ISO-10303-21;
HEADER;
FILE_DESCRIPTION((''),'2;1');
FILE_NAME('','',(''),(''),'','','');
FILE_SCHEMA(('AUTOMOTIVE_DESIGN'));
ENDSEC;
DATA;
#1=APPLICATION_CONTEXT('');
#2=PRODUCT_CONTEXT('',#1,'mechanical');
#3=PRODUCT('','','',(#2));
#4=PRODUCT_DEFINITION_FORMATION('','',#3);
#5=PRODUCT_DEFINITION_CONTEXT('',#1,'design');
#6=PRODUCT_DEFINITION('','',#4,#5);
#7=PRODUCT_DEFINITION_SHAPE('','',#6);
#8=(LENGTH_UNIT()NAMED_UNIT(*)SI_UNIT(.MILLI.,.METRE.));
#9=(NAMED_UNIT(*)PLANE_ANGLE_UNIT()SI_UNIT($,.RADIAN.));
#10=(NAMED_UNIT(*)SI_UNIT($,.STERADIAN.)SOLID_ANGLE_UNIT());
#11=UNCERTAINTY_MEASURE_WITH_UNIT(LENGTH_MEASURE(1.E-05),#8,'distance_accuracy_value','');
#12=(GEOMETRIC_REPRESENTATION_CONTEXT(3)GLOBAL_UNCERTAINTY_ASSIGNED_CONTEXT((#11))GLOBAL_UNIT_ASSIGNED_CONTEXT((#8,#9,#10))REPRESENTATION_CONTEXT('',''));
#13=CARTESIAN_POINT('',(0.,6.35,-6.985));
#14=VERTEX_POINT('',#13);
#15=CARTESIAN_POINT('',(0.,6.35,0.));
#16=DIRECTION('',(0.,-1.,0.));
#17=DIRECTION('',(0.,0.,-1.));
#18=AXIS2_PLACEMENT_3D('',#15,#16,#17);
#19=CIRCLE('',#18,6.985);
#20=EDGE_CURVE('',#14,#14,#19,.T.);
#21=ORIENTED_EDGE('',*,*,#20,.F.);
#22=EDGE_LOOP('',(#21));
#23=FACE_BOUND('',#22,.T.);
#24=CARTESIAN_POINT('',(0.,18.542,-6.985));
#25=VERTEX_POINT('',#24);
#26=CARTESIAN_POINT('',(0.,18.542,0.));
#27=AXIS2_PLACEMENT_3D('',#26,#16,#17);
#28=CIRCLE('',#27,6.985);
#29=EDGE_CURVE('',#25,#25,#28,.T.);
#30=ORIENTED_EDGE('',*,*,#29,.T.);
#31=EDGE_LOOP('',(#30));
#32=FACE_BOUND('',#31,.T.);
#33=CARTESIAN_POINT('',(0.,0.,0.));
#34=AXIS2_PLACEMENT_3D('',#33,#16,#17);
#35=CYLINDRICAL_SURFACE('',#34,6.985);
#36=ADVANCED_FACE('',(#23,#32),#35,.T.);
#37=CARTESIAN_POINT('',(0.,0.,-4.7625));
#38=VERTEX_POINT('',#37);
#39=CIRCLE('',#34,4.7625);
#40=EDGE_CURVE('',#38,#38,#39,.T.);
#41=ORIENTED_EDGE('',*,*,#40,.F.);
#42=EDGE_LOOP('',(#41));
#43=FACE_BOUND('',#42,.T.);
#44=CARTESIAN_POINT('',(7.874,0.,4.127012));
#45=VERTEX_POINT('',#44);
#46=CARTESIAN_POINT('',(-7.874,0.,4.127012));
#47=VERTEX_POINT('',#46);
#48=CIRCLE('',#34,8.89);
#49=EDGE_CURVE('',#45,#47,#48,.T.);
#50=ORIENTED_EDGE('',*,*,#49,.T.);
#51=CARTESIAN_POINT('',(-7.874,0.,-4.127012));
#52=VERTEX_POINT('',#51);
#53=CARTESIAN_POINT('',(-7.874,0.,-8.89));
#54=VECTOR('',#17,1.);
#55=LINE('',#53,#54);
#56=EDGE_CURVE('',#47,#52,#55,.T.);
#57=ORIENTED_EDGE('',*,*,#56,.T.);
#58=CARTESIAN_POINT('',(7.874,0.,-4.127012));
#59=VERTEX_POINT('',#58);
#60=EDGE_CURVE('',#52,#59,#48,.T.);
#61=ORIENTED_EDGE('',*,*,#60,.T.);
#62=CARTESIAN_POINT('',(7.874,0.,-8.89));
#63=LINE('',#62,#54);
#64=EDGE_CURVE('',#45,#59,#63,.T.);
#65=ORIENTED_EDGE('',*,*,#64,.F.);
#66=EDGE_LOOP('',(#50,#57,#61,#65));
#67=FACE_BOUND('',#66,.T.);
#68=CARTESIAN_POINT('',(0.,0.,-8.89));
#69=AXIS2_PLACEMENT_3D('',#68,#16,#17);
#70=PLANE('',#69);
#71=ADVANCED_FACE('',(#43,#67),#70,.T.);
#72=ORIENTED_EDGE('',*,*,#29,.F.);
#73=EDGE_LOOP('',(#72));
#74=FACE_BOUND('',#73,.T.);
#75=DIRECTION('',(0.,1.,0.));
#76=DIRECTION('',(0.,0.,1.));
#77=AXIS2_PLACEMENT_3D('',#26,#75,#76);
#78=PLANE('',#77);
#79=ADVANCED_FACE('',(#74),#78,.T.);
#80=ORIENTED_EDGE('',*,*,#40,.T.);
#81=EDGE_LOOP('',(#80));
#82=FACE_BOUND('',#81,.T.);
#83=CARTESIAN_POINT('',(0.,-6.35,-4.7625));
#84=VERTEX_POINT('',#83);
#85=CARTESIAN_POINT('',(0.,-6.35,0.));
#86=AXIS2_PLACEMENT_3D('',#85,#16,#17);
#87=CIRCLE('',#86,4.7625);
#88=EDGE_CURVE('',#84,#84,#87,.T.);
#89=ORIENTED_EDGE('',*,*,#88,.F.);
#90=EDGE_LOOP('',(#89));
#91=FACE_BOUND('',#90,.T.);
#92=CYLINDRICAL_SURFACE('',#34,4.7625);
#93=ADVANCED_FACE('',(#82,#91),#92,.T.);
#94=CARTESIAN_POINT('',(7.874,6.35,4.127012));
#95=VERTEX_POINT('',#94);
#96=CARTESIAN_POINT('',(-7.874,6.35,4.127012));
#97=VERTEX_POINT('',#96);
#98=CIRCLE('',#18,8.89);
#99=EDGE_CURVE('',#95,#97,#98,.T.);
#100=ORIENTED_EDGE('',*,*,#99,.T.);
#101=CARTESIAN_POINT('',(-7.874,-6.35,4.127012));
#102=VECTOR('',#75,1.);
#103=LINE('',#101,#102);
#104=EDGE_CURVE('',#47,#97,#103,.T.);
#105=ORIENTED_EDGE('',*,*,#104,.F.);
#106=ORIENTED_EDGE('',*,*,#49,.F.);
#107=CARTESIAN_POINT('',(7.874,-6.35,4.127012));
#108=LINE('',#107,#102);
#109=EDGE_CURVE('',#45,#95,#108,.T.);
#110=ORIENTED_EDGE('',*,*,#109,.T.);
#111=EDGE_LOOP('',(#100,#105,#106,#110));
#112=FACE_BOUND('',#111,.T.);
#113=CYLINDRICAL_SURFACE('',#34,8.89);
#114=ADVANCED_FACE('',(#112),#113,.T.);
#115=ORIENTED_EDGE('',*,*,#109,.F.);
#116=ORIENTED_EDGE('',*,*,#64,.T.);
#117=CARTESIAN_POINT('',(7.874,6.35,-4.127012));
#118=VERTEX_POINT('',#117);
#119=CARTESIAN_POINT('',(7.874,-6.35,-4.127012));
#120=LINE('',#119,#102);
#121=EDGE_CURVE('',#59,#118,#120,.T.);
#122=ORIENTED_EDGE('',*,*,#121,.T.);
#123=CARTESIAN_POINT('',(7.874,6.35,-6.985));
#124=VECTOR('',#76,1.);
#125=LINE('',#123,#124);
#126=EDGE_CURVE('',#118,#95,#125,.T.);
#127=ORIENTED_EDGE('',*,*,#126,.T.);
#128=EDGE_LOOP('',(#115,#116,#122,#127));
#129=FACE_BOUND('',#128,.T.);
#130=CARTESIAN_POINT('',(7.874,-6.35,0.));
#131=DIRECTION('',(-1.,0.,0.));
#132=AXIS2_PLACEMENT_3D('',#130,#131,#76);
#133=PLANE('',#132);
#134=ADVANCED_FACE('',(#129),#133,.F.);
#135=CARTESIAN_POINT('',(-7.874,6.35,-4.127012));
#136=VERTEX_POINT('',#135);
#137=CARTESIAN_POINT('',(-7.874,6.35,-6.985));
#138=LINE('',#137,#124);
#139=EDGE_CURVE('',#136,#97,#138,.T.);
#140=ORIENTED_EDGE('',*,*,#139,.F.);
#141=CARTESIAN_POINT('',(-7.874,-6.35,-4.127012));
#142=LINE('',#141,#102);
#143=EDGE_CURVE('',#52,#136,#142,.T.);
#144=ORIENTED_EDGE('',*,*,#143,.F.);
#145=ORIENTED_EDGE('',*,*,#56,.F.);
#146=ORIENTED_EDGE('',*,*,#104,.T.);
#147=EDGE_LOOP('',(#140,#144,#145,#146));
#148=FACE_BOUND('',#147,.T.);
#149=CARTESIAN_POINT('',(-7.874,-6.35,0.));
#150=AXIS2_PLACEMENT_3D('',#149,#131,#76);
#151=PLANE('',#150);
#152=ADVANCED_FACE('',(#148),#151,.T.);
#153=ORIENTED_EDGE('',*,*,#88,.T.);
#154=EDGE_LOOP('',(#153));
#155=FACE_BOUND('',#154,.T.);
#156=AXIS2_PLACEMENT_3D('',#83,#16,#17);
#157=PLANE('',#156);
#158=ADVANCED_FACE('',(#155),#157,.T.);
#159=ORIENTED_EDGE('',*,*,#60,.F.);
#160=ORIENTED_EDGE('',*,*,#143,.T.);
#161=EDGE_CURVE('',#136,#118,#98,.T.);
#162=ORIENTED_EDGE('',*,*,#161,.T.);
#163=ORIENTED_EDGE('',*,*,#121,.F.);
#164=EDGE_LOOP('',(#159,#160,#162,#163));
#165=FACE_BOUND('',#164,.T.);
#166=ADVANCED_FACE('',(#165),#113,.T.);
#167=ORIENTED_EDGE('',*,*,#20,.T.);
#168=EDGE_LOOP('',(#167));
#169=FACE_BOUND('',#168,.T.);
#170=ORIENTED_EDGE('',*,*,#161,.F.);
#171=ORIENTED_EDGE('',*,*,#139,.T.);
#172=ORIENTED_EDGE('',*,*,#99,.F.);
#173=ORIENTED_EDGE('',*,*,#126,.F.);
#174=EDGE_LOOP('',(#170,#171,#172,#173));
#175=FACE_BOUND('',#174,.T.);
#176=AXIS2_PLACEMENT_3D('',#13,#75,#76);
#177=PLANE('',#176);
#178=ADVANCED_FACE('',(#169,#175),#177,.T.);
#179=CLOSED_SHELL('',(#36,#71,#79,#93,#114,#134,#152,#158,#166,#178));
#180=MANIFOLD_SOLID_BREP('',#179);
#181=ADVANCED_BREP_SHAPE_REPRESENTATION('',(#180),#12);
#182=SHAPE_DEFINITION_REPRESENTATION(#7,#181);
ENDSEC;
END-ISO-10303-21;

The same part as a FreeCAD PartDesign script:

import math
import FreeCAD as App
import Part
import Sketcher
Q = App.Units.Quantity


def add_polygon(sketch, points):
    """Adds a closed chain of lines whose ends are joined by coincident constraints."""
    first, n = sketch.GeometryCount, len(points)
    for a, b in zip(points, points[1:] + points[:1]):
        sketch.addGeometry(Part.LineSegment(App.Vector(*a, 0), App.Vector(*b, 0)), False)
    for i in range(n):
        sketch.addConstraint(Sketcher.Constraint("Coincident", first + i, 2, first + (i + 1) % n, 1))

doc = App.newDocument("Part")
params = doc.addObject("Spreadsheet::Sheet", "Params")
for row, (alias, value) in enumerate([
    ("sketch1_width", "0.98 in"),
    ("sketch1_width2", "0.25 in"),
    ("sketch1_height", "0.1875 in"),
    ("sketch1_height2", "0.075 in"),
    ("sketch1_height3", "0.275 in"),
    ("revolution_angle", "360 deg"),
    ("sketch2_radius", "0.35 in"),
], start=1):
    params.set(f"A{row}", alias)
    params.set(f"B{row}", "=" + value)
    params.setAlias(f"B{row}", alias)

body = doc.addObject("PartDesign::Body", "Body")

# Sketch on YZ plane
sketch1 = body.newObject("Sketcher::SketchObject", "Sketch")
sketch1.AttachmentSupport = (doc.getObject("YZ_Plane"), [""])
sketch1.MapMode = "FlatFace"
add_polygon(sketch1, [(18.5, 0), (-6.3, 0), (-6.3, -4.8), (0, -4.8), (0, -8.9), (6.3, -8.9), (6.3, -7), (18.5, -7)])  # lines 0-7
sketch1.addConstraint(Sketcher.Constraint("Horizontal", 0))
sketch1.addConstraint(Sketcher.Constraint("Vertical", 1))
sketch1.addConstraint(Sketcher.Constraint("Horizontal", 2))
sketch1.addConstraint(Sketcher.Constraint("Vertical", 3))
sketch1.addConstraint(Sketcher.Constraint("Horizontal", 4))
sketch1.addConstraint(Sketcher.Constraint("Vertical", 5))
sketch1.addConstraint(Sketcher.Constraint("Horizontal", 6))
sketch1.addConstraint(Sketcher.Constraint("Vertical", 7))
sketch1.addConstraint(Sketcher.Constraint("PointOnObject", 0, 2, -1))
sketch1.addConstraint(Sketcher.Constraint("PointOnObject", 2, 2, -2))
sketch1.addConstraint(Sketcher.Constraint("Equal", 2, 4))
sketch1.addConstraint(Sketcher.Constraint("DistanceX", 0, 2, 0, 1, Q("0.98 in")))
sketch1.addConstraint(Sketcher.Constraint("DistanceX", 2, 1, 2, 2, Q("0.25 in")))
sketch1.addConstraint(Sketcher.Constraint("DistanceY", 1, 2, 1, 1, Q("0.1875 in")))
sketch1.addConstraint(Sketcher.Constraint("DistanceY", 5, 1, 5, 2, Q("0.075 in")))
sketch1.addConstraint(Sketcher.Constraint("DistanceY", 7, 1, 7, 2, Q("0.275 in")))
sketch1.setExpression("Constraints[19]", "Params.sketch1_width")
sketch1.setExpression("Constraints[20]", "Params.sketch1_width2")
sketch1.setExpression("Constraints[21]", "Params.sketch1_height")
sketch1.setExpression("Constraints[22]", "Params.sketch1_height2")
sketch1.setExpression("Constraints[23]", "Params.sketch1_height3")
revolution = body.newObject("PartDesign::Revolution", "Revolution")
revolution.Profile = sketch1
revolution.ReferenceAxis = (sketch1, ["H_Axis"])
revolution.setExpression("Angle", "Params.revolution_angle")

# Sketch on XZ plane
sketch2 = body.newObject("Sketcher::SketchObject", "Sketch001")
sketch2.AttachmentSupport = (doc.getObject("XZ_Plane"), [""])
sketch2.MapMode = "FlatFace"
sketch2.AttachmentOffset = App.Placement(App.Vector(0, 0, -0.73 * 25.4), App.Rotation())
sketch2.addGeometry(Part.LineSegment(App.Vector(-7.9, 4.1, 0), App.Vector(-7.9, -4.1, 0)), False)
sketch2.addGeometry(Part.ArcOfCircle(Part.Circle(App.Vector(0, 0, 0), App.Vector(0, 0, 1), 8.9), math.radians(152), math.radians(208)), False)
sketch2.addGeometry(Part.ArcOfCircle(Part.Circle(App.Vector(0, 0, 0), App.Vector(0, 0, 1), 8.9), math.radians(-28), math.radians(0)), False)
sketch2.addGeometry(Part.LineSegment(App.Vector(7.9, -4.1, 0), App.Vector(7.9, 4.1, 0)), False)
sketch2.addGeometry(Part.ArcOfCircle(Part.Circle(App.Vector(0, 0, 0), App.Vector(0, 0, 1), 8.9), math.radians(0), math.radians(28)), False)
sketch2.addConstraint(Sketcher.Constraint("Coincident", 0, 1, 1, 1))
sketch2.addConstraint(Sketcher.Constraint("Coincident", 1, 2, 0, 2))
sketch2.addConstraint(Sketcher.Constraint("Coincident", 2, 1, 3, 1))
sketch2.addConstraint(Sketcher.Constraint("Coincident", 3, 2, 4, 2))
sketch2.addConstraint(Sketcher.Constraint("Tangent", 4, 1, 2, 2))
sketch2.addConstraint(Sketcher.Constraint("Vertical", 0))
sketch2.addConstraint(Sketcher.Constraint("Vertical", 3))
sketch2.addConstraint(Sketcher.Constraint("Coincident", 1, 3, -1, 1))
sketch2.addConstraint(Sketcher.Constraint("Coincident", 2, 3, -1, 1))
sketch2.addConstraint(Sketcher.Constraint("Equal", 1, 2))
sketch2.addConstraint(Sketcher.Constraint("Equal", 2, 4))
sketch2.addConstraint(Sketcher.Constraint("PointOnObject", 4, 1, -1))
sketch2.addConstraint(Sketcher.Constraint("Horizontal", 1, 2, 2, 1))
sketch2.addConstraint(Sketcher.Constraint("Radius", 1, Q("0.35 in")))
sketch2.addConstraint(Sketcher.Constraint("DistanceX", 0, 1, -1, 1, Q("0.31 in")))
sketch2.setExpression("Constraints[13]", "Params.sketch2_radius")
pocket1 = body.newObject("PartDesign::Pocket", "Pocket")
pocket1.Profile = sketch2
pocket1.Type = "ThroughAll"
pocket1.Reversed = True

doc.recompute()
